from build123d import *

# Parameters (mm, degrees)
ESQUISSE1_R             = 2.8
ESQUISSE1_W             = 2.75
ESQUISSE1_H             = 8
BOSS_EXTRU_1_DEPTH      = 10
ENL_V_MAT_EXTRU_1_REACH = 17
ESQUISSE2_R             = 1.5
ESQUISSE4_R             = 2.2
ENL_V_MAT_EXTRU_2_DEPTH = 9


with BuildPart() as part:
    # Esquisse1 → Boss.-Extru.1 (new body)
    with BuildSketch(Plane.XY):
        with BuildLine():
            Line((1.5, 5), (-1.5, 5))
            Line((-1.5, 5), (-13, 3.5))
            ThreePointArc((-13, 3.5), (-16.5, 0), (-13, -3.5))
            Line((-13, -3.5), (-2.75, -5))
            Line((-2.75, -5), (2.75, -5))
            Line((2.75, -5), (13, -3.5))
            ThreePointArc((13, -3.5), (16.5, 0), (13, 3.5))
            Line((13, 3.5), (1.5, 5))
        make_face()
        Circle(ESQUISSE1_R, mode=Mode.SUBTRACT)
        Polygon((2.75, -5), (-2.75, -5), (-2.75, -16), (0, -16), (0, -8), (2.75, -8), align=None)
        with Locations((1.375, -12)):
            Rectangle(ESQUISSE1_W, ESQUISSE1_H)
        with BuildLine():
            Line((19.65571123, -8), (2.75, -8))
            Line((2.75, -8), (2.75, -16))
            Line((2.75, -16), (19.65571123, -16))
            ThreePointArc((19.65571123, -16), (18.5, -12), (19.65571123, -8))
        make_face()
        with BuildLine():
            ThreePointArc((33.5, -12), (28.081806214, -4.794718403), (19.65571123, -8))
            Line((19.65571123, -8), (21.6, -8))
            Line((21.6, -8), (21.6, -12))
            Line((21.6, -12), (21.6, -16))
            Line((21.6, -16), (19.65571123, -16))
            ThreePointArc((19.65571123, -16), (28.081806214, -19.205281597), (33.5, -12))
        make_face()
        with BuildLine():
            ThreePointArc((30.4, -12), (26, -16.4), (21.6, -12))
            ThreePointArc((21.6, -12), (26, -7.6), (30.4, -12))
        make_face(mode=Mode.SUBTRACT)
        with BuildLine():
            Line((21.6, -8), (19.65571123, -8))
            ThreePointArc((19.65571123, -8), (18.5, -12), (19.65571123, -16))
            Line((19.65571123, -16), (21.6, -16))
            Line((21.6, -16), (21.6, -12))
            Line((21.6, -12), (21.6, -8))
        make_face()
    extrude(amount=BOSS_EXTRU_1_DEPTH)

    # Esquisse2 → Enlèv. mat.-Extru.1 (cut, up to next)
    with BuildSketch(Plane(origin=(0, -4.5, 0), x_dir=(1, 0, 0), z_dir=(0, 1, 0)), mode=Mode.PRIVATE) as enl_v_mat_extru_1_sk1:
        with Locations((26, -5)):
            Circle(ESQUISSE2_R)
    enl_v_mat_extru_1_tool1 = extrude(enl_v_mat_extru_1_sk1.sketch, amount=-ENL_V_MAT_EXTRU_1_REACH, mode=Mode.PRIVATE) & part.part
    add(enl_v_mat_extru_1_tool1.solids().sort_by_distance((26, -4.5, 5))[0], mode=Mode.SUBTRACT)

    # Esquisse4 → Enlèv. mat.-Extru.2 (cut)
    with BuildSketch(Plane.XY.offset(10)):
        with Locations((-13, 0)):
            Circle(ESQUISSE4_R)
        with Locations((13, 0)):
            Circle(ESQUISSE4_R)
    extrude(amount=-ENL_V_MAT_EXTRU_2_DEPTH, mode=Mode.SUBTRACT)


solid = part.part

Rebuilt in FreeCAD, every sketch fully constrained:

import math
import FreeCAD as App
import Part
import Sketcher
from FreeCAD import Vector
Q = App.Units.Quantity

doc = App.newDocument("Part")
params = doc.addObject("Spreadsheet::Sheet", "Params")
for row, (alias, value) in enumerate([
    ("sketch1_diameter", "5.6 mm"),
    ("sketch1_diameter2", "8.8 mm"),
    ("sketch1_radius", "3.5 mm"),
    ("sketch1_radius2", "7.5 mm"),
    ("sketch1_width", "3 mm"),
    ("pad1_length", "10 mm"),
    ("sketch2_diameter", "3 mm"),
    ("sketch3_diameter", "4.4 mm"),
    ("pocket2_length", "9 mm"),
], start=1):
    params.set(f"A{row}", alias)
    params.set(f"B{row}", "=" + value)
    params.setAlias(f"B{row}", alias)

body = doc.addObject("PartDesign::Body", "Body")

# Sketch on XY plane
sketch1 = body.newObject("Sketcher::SketchObject", "Sketch")
sketch1.AttachmentSupport = (doc.getObject("XY_Plane"), [""])
sketch1.MapMode = "FlatFace"
sketch1.addGeometry(Part.LineSegment(Vector(1.5, 5, 0), Vector(-1.5, 5, 0)), False)
sketch1.addGeometry(Part.LineSegment(Vector(-1.5, 5, 0), Vector(-13, 3.5, 0)), False)
sketch1.addGeometry(Part.ArcOfCircle(Part.Circle(Vector(-13, 0, 0), Vector(0, 0, 1), 3.5), math.radians(90), math.radians(270)), False)
sketch1.addGeometry(Part.LineSegment(Vector(-13, -3.5, 0), Vector(-2.75, -5, 0)), False)
sketch1.addGeometry(Part.LineSegment(Vector(-2.75, -5, 0), Vector(-2.75, -16, 0)), False)
sketch1.addGeometry(Part.LineSegment(Vector(-2.75, -16, 0), Vector(19.655711, -16, 0)), False)
sketch1.addGeometry(Part.ArcOfCircle(Part.Circle(Vector(26, -12, 0), Vector(0, 0, 1), 7.5), math.radians(-147.769047), math.radians(0)), False)
sketch1.addGeometry(Part.ArcOfCircle(Part.Circle(Vector(26, -12, 0), Vector(0, 0, 1), 7.5), math.radians(0), math.radians(147.769047)), False)
sketch1.addGeometry(Part.LineSegment(Vector(19.655711, -8, 0), Vector(2.75, -8, 0)), False)
sketch1.addGeometry(Part.LineSegment(Vector(2.75, -8, 0), Vector(2.75, -5, 0)), False)
sketch1.addGeometry(Part.LineSegment(Vector(2.75, -5, 0), Vector(13, -3.5, 0)), False)
sketch1.addGeometry(Part.ArcOfCircle(Part.Circle(Vector(13, 0, 0), Vector(0, 0, 1), 3.5), math.radians(-90), math.radians(90)), False)
sketch1.addGeometry(Part.LineSegment(Vector(13, 3.5, 0), Vector(1.5, 5, 0)), False)
sketch1.addGeometry(Part.Circle(Vector(0, 0, 0), Vector(0, 0, 1), 2.8), False)
sketch1.addGeometry(Part.Circle(Vector(26, -12, 0), Vector(0, 0, 1), 4.4), False)
sketch1.addConstraint(Sketcher.Constraint("Coincident", 0, 2, 1, 1))
sketch1.addConstraint(Sketcher.Constraint("Coincident", 1, 2, 2, 1))
sketch1.addConstraint(Sketcher.Constraint("Coincident", 2, 2, 3, 1))
sketch1.addConstraint(Sketcher.Constraint("Coincident", 3, 2, 4, 1))
sketch1.addConstraint(Sketcher.Constraint("Coincident", 4, 2, 5, 1))
sketch1.addConstraint(Sketcher.Constraint("Coincident", 5, 2, 6, 1))
sketch1.addConstraint(Sketcher.Constraint("Tangent", 6, 2, 7, 1))
sketch1.addConstraint(Sketcher.Constraint("Coincident", 7, 2, 8, 1))
sketch1.addConstraint(Sketcher.Constraint("Coincident", 8, 2, 9, 1))
sketch1.addConstraint(Sketcher.Constraint("Coincident", 9, 2, 10, 1))
sketch1.addConstraint(Sketcher.Constraint("Coincident", 10, 2, 11, 1))
sketch1.addConstraint(Sketcher.Constraint("Coincident", 11, 2, 12, 1))
sketch1.addConstraint(Sketcher.Constraint("Coincident", 12, 2, 0, 1))
sketch1.addConstraint(Sketcher.Constraint("Horizontal", 0))
sketch1.addConstraint(Sketcher.Constraint("Vertical", 4))
sketch1.addConstraint(Sketcher.Constraint("Horizontal", 5))
sketch1.addConstraint(Sketcher.Constraint("Horizontal", 8))
sketch1.addConstraint(Sketcher.Constraint("Vertical", 9))
sketch1.addConstraint(Sketcher.Constraint("Coincident", 13, 3, -1, 1))
sketch1.addConstraint(Sketcher.Constraint("Coincident", 14, 3, 6, 3))
sketch1.addConstraint(Sketcher.Constraint("Equal", 6, 7))
sketch1.addConstraint(Sketcher.Constraint("Equal", 2, 11))
sketch1.addConstraint(Sketcher.Constraint("Symmetric", 2, 3, 11, 3, -1, 1))
sketch1.addConstraint(Sketcher.Constraint("Symmetric", 3, 2, 9, 2, -2))
sketch1.addConstraint(Sketcher.Constraint("Symmetric", 2, 2, 10, 2, -2))
sketch1.addConstraint(Sketcher.Constraint("Horizontal", 14, 3, 6, 2))
sketch1.addConstraint(Sketcher.Constraint("Vertical", 2, 3, 1, 2))
sketch1.addConstraint(Sketcher.Constraint("Vertical", 1, 2, 2, 2))
sketch1.addConstraint(Sketcher.Constraint("Vertical", 5, 2, 7, 2))
sketch1.addConstraint(Sketcher.Constraint("Vertical", 10, 2, 11, 2))
sketch1.addConstraint(Sketcher.Constraint("Equal", 0, 9))
sketch1.addConstraint(Sketcher.Constraint("Equal", 1, 12))
sketch1.addConstraint(Sketcher.Constraint("Diameter", 13, Q("5.6 mm")))
sketch1.addConstraint(Sketcher.Constraint("Diameter", 14, Q("8.8 mm")))
sketch1.addConstraint(Sketcher.Constraint("Radius", 2, Q("3.5 mm")))
sketch1.addConstraint(Sketcher.Constraint("Radius", 6, Q("7.5 mm")))
sketch1.addConstraint(Sketcher.Constraint("DistanceX", 0, 2, 0, 1, Q("3 mm")))
sketch1.addConstraint(Sketcher.Constraint("DistanceY", 4, 2, 4, 1, Q("11 mm")))
sketch1.addConstraint(Sketcher.Constraint("DistanceX", 2, 3, -1, 1, Q("13 mm")))
sketch1.addConstraint(Sketcher.Constraint("DistanceX", -1, 1, 6, 3, Q("26 mm")))
sketch1.addConstraint(Sketcher.Constraint("DistanceY", 6, 3, -1, 1, Q("12 mm")))
sketch1.addConstraint(Sketcher.Constraint("DistanceY", -1, 1, 0, 2, Q("5 mm")))
sketch1.addConstraint(Sketcher.Constraint("DistanceX", 3, 2, 8, 2, Q("5.5 mm")))
sketch1.setExpression("Constraints[32]", "Params.sketch1_diameter")
sketch1.setExpression("Constraints[33]", "Params.sketch1_diameter2")
sketch1.setExpression("Constraints[34]", "Params.sketch1_radius")
sketch1.setExpression("Constraints[35]", "Params.sketch1_radius2")
sketch1.setExpression("Constraints[36]", "Params.sketch1_width")
pad1 = body.newObject("PartDesign::Pad", "Pad")
pad1.Profile = sketch1
pad1.setExpression("Length", "Params.pad1_length")

# Sketch on XZ plane
sketch2 = body.newObject("Sketcher::SketchObject", "Sketch001")
sketch2.AttachmentSupport = (doc.getObject("XZ_Plane"), [""])
sketch2.MapMode = "FlatFace"
sketch2.AttachmentOffset = App.Placement(Vector(0, 0, 4.5), App.Rotation())
sketch2.addGeometry(Part.Circle(Vector(26, 5, 0), Vector(0, 0, 1), 1.5), False)
sketch2.addConstraint(Sketcher.Constraint("Diameter", 0, Q("3 mm")))
sketch2.addConstraint(Sketcher.Constraint("DistanceX", -1, 1, 0, 3, Q("26 mm")))
sketch2.addConstraint(Sketcher.Constraint("DistanceY", -1, 1, 0, 3, Q("5 mm")))
sketch2.setExpression("Constraints[0]", "Params.sketch2_diameter")
pocket1 = body.newObject("PartDesign::Pocket", "Pocket")
pocket1.Profile = sketch2
pocket1.Type = "UpToFirst"
pocket1.Reversed = True

# Sketch on XY plane
sketch3 = body.newObject("Sketcher::SketchObject", "Sketch002")
sketch3.AttachmentSupport = (doc.getObject("XY_Plane"), [""])
sketch3.MapMode = "FlatFace"
sketch3.AttachmentOffset = App.Placement(Vector(0, 0, 10), App.Rotation())
sketch3.addGeometry(Part.Circle(Vector(-13, 0, 0), Vector(0, 0, 1), 2.2), False)
sketch3.addGeometry(Part.Circle(Vector(13, 0, 0), Vector(0, 0, 1), 2.2), False)
sketch3.addConstraint(Sketcher.Constraint("Equal", 0, 1))
sketch3.addConstraint(Sketcher.Constraint("Symmetric", 0, 3, 1, 3, -1, 1))
sketch3.addConstraint(Sketcher.Constraint("PointOnObject", 0, 3, -1))
sketch3.addConstraint(Sketcher.Constraint("Diameter", 0, Q("4.4 mm")))
sketch3.addConstraint(Sketcher.Constraint("DistanceX", 0, 3, -1, 1, Q("13 mm")))
sketch3.setExpression("Constraints[3]", "Params.sketch3_diameter")
pocket2 = body.newObject("PartDesign::Pocket", "Pocket001")
pocket2.Profile = sketch3
pocket2.setExpression("Length", "Params.pocket2_length")

doc.recompute()
